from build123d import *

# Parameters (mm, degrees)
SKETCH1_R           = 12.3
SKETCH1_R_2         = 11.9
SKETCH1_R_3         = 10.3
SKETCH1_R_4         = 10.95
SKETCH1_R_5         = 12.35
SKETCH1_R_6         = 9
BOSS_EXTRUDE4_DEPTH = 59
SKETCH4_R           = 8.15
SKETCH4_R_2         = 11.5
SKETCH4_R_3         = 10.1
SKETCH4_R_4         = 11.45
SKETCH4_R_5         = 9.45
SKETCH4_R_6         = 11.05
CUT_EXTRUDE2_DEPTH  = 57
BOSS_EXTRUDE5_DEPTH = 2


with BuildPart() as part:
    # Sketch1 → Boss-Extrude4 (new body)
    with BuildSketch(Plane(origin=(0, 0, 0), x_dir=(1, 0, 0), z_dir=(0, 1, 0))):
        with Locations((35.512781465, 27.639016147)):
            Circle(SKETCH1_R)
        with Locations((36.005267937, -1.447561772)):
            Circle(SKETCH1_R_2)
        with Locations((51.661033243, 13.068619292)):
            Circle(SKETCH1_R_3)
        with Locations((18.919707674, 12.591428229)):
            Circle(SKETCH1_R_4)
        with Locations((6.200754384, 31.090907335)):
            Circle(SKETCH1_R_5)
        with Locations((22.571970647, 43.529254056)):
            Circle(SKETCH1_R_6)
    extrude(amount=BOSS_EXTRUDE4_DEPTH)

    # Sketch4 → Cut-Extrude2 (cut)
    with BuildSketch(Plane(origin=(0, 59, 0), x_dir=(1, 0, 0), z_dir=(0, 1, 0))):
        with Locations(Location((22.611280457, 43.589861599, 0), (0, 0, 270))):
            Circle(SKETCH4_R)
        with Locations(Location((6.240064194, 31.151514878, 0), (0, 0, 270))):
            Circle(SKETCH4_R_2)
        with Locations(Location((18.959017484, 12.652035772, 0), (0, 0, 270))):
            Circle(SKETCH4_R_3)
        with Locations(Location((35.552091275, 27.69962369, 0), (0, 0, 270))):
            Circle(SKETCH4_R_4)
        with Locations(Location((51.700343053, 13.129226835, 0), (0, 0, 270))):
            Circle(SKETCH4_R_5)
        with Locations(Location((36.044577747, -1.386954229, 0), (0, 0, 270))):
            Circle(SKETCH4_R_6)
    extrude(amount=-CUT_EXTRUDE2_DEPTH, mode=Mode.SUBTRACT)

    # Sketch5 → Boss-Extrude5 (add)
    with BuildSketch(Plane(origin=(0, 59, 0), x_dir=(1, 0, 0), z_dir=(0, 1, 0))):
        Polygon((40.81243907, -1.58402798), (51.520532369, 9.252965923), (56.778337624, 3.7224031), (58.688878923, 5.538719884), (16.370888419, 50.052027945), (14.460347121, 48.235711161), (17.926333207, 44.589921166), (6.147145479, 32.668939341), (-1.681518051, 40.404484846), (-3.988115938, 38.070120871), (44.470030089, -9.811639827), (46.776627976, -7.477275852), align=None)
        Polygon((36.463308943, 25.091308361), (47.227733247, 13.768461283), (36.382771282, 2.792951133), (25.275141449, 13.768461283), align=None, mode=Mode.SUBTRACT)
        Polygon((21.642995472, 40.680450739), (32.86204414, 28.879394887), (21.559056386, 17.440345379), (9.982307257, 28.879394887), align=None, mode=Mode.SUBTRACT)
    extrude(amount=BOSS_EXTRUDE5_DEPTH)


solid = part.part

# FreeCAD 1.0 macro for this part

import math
import FreeCAD as App
import Part
import Sketcher


def add_polygon(sketch, points):
    """Adds a closed chain of lines whose ends are joined by coincident constraints."""
    first, n = sketch.GeometryCount, len(points)
    for a, b in zip(points, points[1:] + points[:1]):
        sketch.addGeometry(Part.LineSegment(App.Vector(*a, 0), App.Vector(*b, 0)), False)
    for i in range(n):
        sketch.addConstraint(Sketcher.Constraint("Coincident", first + i, 2, first + (i + 1) % n, 1))

doc = App.newDocument("Part")
body = doc.addObject("PartDesign::Body", "Body")

# Sketch on XZ plane
sketch1 = body.newObject("Sketcher::SketchObject", "Sketch")
sketch1.AttachmentSupport = (doc.getObject("XZ_Plane"), [""])
sketch1.MapMode = "FlatFace"
sketch1.addGeometry([
    Part.ArcOfCircle(Part.Circle(App.Vector(18.919708, -12.591428, 0), App.Vector(0, 0, 1), 10.95), math.radians(54.628832), math.radians(218.979625)),  # 0
    Part.ArcOfCircle(Part.Circle(App.Vector(36.005268, 1.447562, 0), App.Vector(0, 0, 1), 11.9), math.radians(-28.068152), math.radians(205.431034)),  # 1
    Part.ArcOfCircle(Part.Circle(App.Vector(51.661033, -13.068619, 0), App.Vector(0, 0, 1), 10.3), math.radians(-120.675662), math.radians(120.034317)),  # 2
    Part.ArcOfCircle(Part.Circle(App.Vector(35.512781, -27.639016, 0), App.Vector(0, 0, 1), 12.3), math.radians(-115.685664), math.radians(27.669113)),  # 3
    Part.ArcOfCircle(Part.Circle(App.Vector(22.571971, -43.529254, 0), App.Vector(0, 0, 1), 9), math.radians(161.15383), math.radians(392.273531)),  # 4
    Part.ArcOfCircle(Part.Circle(App.Vector(6.200754, -31.090907, 0), App.Vector(0, 0, 1), 12.35), math.radians(70.084864), math.radians(309.488859)),  # 5
    Part.ArcOfCircle(Part.Circle(App.Vector(6.200754, -31.090907, 0), App.Vector(0, 0, 1), 12.35), math.radians(-23.941764), math.radians(40.895728)),  # 6
    Part.ArcOfCircle(Part.Circle(App.Vector(22.571971, -43.529254, 0), App.Vector(0, 0, 1), 9), math.radians(69.408589), math.radians(124.393265)),  # 7
    Part.ArcOfCircle(Part.Circle(App.Vector(35.512781, -27.639016, 0), App.Vector(0, 0, 1), 12.3), math.radians(152.437151), math.radians(217.367784)),  # 8
    Part.ArcOfCircle(Part.Circle(App.Vector(18.919708, -12.591428, 0), App.Vector(0, 0, 1), 10.95), math.radians(-107.999032), math.radians(-58.697901)),  # 9
    Part.ArcOfCircle(Part.Circle(App.Vector(36.005268, 1.447562, 0), App.Vector(0, 0, 1), 11.9), math.radians(-126.612003), math.radians(-57.60582)),  # 10
    Part.ArcOfCircle(Part.Circle(App.Vector(18.919708, -12.591428, 0), App.Vector(0, 0, 1), 10.95), math.radians(-25.709328), math.radians(24.190199)),  # 11
    Part.ArcOfCircle(Part.Circle(App.Vector(35.512781, -27.639016, 0), App.Vector(0, 0, 1), 12.3), math.radians(56.450092), math.radians(123.15562)),  # 12
    Part.ArcOfCircle(Part.Circle(App.Vector(51.661033, -13.068619, 0), App.Vector(0, 0, 1), 10.3), math.radians(154.291712), math.radians(204.794866)),  # 13
], False)
sketch1.addConstraint([
    Sketcher.Constraint("Coincident", 0, 1, 1, 2),
    Sketcher.Constraint("Coincident", 1, 1, 2, 2),
    Sketcher.Constraint("Coincident", 2, 1, 3, 2),
    Sketcher.Constraint("Coincident", 3, 1, 4, 2),
    Sketcher.Constraint("Coincident", 4, 1, 5, 2),
    Sketcher.Constraint("Coincident", 5, 1, 0, 2),
    Sketcher.Constraint("Coincident", 6, 1, 7, 2),
    Sketcher.Constraint("Coincident", 7, 1, 8, 2),
    Sketcher.Constraint("Coincident", 8, 1, 9, 2),
    Sketcher.Constraint("Coincident", 9, 1, 6, 2),
    Sketcher.Constraint("Coincident", 10, 1, 11, 2),
    Sketcher.Constraint("Coincident", 11, 1, 12, 2),
    Sketcher.Constraint("Coincident", 12, 1, 13, 2),
    Sketcher.Constraint("Coincident", 13, 1, 10, 2),
    Sketcher.Constraint("Coincident", 6, 3, 5, 3),
    Sketcher.Constraint("Coincident", 7, 3, 4, 3),
    Sketcher.Constraint("Coincident", 8, 3, 3, 3),
    Sketcher.Constraint("Coincident", 9, 3, 0, 3),
    Sketcher.Constraint("Coincident", 10, 3, 1, 3),
    Sketcher.Constraint("Coincident", 11, 3, 0, 3),
    Sketcher.Constraint("Coincident", 12, 3, 3, 3),
    Sketcher.Constraint("Coincident", 13, 3, 2, 3),
    Sketcher.Constraint("Equal", 5, 6),
    Sketcher.Constraint("Equal", 4, 7),
    Sketcher.Constraint("Equal", 3, 8),
    Sketcher.Constraint("Equal", 0, 9),
    Sketcher.Constraint("Equal", 1, 10),
    Sketcher.Constraint("Equal", 9, 11),
    Sketcher.Constraint("Equal", 8, 12),
    Sketcher.Constraint("Equal", 2, 13),
    Sketcher.Constraint("Radius", 4, 9.0),
    Sketcher.Constraint("Radius", 1, 11.9),
    Sketcher.Constraint("Radius", 2, 10.3),
    Sketcher.Constraint("Radius", 3, 12.3),
    Sketcher.Constraint("Radius", 0, 10.95),
    Sketcher.Constraint("Radius", 5, 12.35),
    Sketcher.Constraint("DistanceY", 4, 1, -1, 1, 40.621998),
    Sketcher.Constraint("DistanceY", 11, 1, -1, 1, 17.341601),
    Sketcher.Constraint("DistanceY", 4, 1, 3, 1, 1.8984),
    Sketcher.Constraint("DistanceX", 5, 1, 0, 3, 8.512198),
    Sketcher.Constraint("DistanceX", 7, 1, 3, 3, 9.775499),
    Sketcher.Constraint("DistanceY", 0, 3, -1, 1, 12.591428),
    Sketcher.Constraint("DistanceY", -1, 1, 1, 3, 1.447562),
    Sketcher.Constraint("DistanceY", 2, 3, -1, 1, 13.068619),
    Sketcher.Constraint("DistanceX", -1, 1, 3, 3, 35.512781),
    Sketcher.Constraint("DistanceX", -1, 1, 4, 3, 22.571971),
    Sketcher.Constraint("DistanceY", 0, 1, -1, 1, 3.662588),
    Sketcher.Constraint("DistanceX", -1, 1, 1, 1, 46.505692),
])
pad1 = body.newObject("PartDesign::Pad", "Pad")
pad1.Profile = sketch1
pad1.Length = 59
pad1.Reversed = True

# Sketch on XZ plane
sketch2 = body.newObject("Sketcher::SketchObject", "Sketch001")
sketch2.AttachmentSupport = (doc.getObject("XZ_Plane"), [""])
sketch2.MapMode = "FlatFace"
sketch2.AttachmentOffset = App.Placement(App.Vector(0, 0, -59), App.Rotation())
sketch2.addGeometry([
    Part.Circle(App.Vector(22.61128, -43.589862, 0), App.Vector(0, 0, 1), 8.15),  # 0
    Part.Circle(App.Vector(6.240064, -31.151515, 0), App.Vector(0, 0, 1), 11.5),  # 1
    Part.Circle(App.Vector(18.959017, -12.652036, 0), App.Vector(0, 0, 1), 10.1),  # 2
    Part.Circle(App.Vector(35.552091, -27.699624, 0), App.Vector(0, 0, 1), 11.45),  # 3
    Part.Circle(App.Vector(51.700343, -13.129227, 0), App.Vector(0, 0, 1), 9.45),  # 4
    Part.Circle(App.Vector(36.044578, 1.386954, 0), App.Vector(0, 0, 1), 11.05),  # 5
], False)
sketch2.addConstraint([
    Sketcher.Constraint("Diameter", 1, 23.0),
    Sketcher.Constraint("Diameter", 0, 16.3),
    Sketcher.Constraint("Diameter", 2, 20.2),
    Sketcher.Constraint("Diameter", 3, 22.9),
    Sketcher.Constraint("Diameter", 4, 18.9),
    Sketcher.Constraint("Diameter", 5, 22.1),
    Sketcher.Constraint("DistanceX", -1, 1, 0, 3, 22.61128),
    Sketcher.Constraint("DistanceY", 0, 3, -1, 1, 43.589862),
    Sketcher.Constraint("DistanceX", -1, 1, 3, 3, 35.552091),
    Sketcher.Constraint("DistanceY", 1, 3, 2, 3, 18.499479),
    Sketcher.Constraint("DistanceY", 1, 3, 3, 3, 3.451891),
    Sketcher.Constraint("DistanceX", 3, 3, 4, 3, 16.148252),
    Sketcher.Constraint("DistanceY", 4, 3, 2, 3, 0.477191),
    Sketcher.Constraint("DistanceX", 1, 3, 4, 3, 45.460279),
    Sketcher.Constraint("DistanceY", 4, 3, 5, 3, 14.516181),
    Sketcher.Constraint("DistanceX", 2, 3, 5, 3, 17.08556),
    Sketcher.Constraint("DistanceY", 1, 3, -1, 1, 31.151515),
    Sketcher.Constraint("DistanceX", -1, 1, 2, 3, 18.959017),
])
pocket1 = body.newObject("PartDesign::Pocket", "Pocket")
pocket1.Profile = sketch2
pocket1.Length = 57
pocket1.Reversed = True

# Sketch on XZ plane
sketch3 = body.newObject("Sketcher::SketchObject", "Sketch002")
sketch3.AttachmentSupport = (doc.getObject("XZ_Plane"), [""])
sketch3.MapMode = "FlatFace"
sketch3.AttachmentOffset = App.Placement(App.Vector(0, 0, -59), App.Rotation())
add_polygon(sketch3, [(40.812439, 1.584028), (51.520532, -9.252966), (56.778338, -3.722403), (58.688879, -5.53872), (16.370888, -50.052028), (14.460347, -48.235711), (17.926333, -44.589921), (6.147145, -32.668939), (-1.681518, -40.404485), (-3.988116, -38.070121), (44.47003, 9.81164), (46.776628, 7.477276)])  # lines 0-11
add_polygon(sketch3, [(25.275141, -13.768461), (36.463309, -25.091308), (47.227733, -13.768461), (36.382771, -2.792951)])  # lines 12-15
add_polygon(sketch3, [(9.982307, -28.879395), (21.642995, -40.680451), (32.862044, -28.879395), (21.559056, -17.440345)])  # lines 16-19
sketch3.addConstraint([
    Sketcher.Constraint("Perpendicular", 1, 2),
    Sketcher.Constraint("Perpendicular", 2, 3),
    Sketcher.Constraint("Perpendicular", 3, 4),
    Sketcher.Constraint("Perpendicular", 4, 5),
    Sketcher.Constraint("Parallel", 0, 6),
    Sketcher.Constraint("Perpendicular", 6, 7),
    Sketcher.Constraint("Perpendicular", 7, 8),
    Sketcher.Constraint("Perpendicular", 8, 9),
    Sketcher.Constraint("Perpendicular", 9, 10),
    Sketcher.Constraint("Perpendicular", 10, 11),
    Sketcher.Constraint("Perpendicular", 11, 12),
    Sketcher.Constraint("Parallel", 5, 13),
    Sketcher.Constraint("Parallel", 12, 14),
    Sketcher.Constraint("Perpendicular", 14, 15),
    Sketcher.Constraint("Perpendicular", 15, 16),
    Sketcher.Constraint("Parallel", 13, 17),
    Sketcher.Constraint("Parallel", 16, 18),
    Sketcher.Constraint("Perpendicular", 18, 19),
    Sketcher.Constraint("Horizontal", 13, 2, 15, 2),
    Sketcher.Constraint("Horizontal", 17, 2, 19, 2),
    Sketcher.Constraint("Equal", 2, 4),
    Sketcher.Constraint("Equal", 8, 10),
    Sketcher.Constraint("DistanceX", 5, 2, 0, 2, 33.594199),
    Sketcher.Constraint("DistanceY", 5, 2, 2, 2, 39.051201),
    Sketcher.Constraint("DistanceX", 6, 2, 4, 2, 8.313202),
    Sketcher.Constraint("DistanceY", 5, 2, 8, 2, 6.5198),
    Sketcher.Constraint("DistanceX", 11, 2, 1, 2, 15.965899),
    Sketcher.Constraint("DistanceX", 13, 2, 0, 2, 4.292799),
    Sketcher.Constraint("Distance", 0, 15.23495),
    Sketcher.Constraint("Distance", 2, 2.636129),
    Sketcher.Constraint("Distance", 3, 61.41862),
    Sketcher.Constraint("Distance", 9, 68.123821),
    Sketcher.Constraint("Distance", 13, 15.62305),
    Sketcher.Constraint("Distance", 19, 16.274919),
    Sketcher.Constraint("DistanceX", -1, 1, 2, 2, 58.688879),
    Sketcher.Constraint("DistanceY", 2, 2, -1, 1, 5.53872),
    Sketcher.Constraint("DistanceX", 7, 2, -1, 1, 1.681518),
    Sketcher.Constraint("DistanceY", 12, 2, -1, 1, 25.091308),
    Sketcher.Constraint("DistanceY", 16, 2, -1, 1, 40.680451),
    Sketcher.Constraint("DistanceX", 4, 2, 16, 2, 7.182648),
])
pad2 = body.newObject("PartDesign::Pad", "Pad001")
pad2.Profile = sketch3
pad2.Length = 2
pad2.Reversed = True

doc.recompute()
